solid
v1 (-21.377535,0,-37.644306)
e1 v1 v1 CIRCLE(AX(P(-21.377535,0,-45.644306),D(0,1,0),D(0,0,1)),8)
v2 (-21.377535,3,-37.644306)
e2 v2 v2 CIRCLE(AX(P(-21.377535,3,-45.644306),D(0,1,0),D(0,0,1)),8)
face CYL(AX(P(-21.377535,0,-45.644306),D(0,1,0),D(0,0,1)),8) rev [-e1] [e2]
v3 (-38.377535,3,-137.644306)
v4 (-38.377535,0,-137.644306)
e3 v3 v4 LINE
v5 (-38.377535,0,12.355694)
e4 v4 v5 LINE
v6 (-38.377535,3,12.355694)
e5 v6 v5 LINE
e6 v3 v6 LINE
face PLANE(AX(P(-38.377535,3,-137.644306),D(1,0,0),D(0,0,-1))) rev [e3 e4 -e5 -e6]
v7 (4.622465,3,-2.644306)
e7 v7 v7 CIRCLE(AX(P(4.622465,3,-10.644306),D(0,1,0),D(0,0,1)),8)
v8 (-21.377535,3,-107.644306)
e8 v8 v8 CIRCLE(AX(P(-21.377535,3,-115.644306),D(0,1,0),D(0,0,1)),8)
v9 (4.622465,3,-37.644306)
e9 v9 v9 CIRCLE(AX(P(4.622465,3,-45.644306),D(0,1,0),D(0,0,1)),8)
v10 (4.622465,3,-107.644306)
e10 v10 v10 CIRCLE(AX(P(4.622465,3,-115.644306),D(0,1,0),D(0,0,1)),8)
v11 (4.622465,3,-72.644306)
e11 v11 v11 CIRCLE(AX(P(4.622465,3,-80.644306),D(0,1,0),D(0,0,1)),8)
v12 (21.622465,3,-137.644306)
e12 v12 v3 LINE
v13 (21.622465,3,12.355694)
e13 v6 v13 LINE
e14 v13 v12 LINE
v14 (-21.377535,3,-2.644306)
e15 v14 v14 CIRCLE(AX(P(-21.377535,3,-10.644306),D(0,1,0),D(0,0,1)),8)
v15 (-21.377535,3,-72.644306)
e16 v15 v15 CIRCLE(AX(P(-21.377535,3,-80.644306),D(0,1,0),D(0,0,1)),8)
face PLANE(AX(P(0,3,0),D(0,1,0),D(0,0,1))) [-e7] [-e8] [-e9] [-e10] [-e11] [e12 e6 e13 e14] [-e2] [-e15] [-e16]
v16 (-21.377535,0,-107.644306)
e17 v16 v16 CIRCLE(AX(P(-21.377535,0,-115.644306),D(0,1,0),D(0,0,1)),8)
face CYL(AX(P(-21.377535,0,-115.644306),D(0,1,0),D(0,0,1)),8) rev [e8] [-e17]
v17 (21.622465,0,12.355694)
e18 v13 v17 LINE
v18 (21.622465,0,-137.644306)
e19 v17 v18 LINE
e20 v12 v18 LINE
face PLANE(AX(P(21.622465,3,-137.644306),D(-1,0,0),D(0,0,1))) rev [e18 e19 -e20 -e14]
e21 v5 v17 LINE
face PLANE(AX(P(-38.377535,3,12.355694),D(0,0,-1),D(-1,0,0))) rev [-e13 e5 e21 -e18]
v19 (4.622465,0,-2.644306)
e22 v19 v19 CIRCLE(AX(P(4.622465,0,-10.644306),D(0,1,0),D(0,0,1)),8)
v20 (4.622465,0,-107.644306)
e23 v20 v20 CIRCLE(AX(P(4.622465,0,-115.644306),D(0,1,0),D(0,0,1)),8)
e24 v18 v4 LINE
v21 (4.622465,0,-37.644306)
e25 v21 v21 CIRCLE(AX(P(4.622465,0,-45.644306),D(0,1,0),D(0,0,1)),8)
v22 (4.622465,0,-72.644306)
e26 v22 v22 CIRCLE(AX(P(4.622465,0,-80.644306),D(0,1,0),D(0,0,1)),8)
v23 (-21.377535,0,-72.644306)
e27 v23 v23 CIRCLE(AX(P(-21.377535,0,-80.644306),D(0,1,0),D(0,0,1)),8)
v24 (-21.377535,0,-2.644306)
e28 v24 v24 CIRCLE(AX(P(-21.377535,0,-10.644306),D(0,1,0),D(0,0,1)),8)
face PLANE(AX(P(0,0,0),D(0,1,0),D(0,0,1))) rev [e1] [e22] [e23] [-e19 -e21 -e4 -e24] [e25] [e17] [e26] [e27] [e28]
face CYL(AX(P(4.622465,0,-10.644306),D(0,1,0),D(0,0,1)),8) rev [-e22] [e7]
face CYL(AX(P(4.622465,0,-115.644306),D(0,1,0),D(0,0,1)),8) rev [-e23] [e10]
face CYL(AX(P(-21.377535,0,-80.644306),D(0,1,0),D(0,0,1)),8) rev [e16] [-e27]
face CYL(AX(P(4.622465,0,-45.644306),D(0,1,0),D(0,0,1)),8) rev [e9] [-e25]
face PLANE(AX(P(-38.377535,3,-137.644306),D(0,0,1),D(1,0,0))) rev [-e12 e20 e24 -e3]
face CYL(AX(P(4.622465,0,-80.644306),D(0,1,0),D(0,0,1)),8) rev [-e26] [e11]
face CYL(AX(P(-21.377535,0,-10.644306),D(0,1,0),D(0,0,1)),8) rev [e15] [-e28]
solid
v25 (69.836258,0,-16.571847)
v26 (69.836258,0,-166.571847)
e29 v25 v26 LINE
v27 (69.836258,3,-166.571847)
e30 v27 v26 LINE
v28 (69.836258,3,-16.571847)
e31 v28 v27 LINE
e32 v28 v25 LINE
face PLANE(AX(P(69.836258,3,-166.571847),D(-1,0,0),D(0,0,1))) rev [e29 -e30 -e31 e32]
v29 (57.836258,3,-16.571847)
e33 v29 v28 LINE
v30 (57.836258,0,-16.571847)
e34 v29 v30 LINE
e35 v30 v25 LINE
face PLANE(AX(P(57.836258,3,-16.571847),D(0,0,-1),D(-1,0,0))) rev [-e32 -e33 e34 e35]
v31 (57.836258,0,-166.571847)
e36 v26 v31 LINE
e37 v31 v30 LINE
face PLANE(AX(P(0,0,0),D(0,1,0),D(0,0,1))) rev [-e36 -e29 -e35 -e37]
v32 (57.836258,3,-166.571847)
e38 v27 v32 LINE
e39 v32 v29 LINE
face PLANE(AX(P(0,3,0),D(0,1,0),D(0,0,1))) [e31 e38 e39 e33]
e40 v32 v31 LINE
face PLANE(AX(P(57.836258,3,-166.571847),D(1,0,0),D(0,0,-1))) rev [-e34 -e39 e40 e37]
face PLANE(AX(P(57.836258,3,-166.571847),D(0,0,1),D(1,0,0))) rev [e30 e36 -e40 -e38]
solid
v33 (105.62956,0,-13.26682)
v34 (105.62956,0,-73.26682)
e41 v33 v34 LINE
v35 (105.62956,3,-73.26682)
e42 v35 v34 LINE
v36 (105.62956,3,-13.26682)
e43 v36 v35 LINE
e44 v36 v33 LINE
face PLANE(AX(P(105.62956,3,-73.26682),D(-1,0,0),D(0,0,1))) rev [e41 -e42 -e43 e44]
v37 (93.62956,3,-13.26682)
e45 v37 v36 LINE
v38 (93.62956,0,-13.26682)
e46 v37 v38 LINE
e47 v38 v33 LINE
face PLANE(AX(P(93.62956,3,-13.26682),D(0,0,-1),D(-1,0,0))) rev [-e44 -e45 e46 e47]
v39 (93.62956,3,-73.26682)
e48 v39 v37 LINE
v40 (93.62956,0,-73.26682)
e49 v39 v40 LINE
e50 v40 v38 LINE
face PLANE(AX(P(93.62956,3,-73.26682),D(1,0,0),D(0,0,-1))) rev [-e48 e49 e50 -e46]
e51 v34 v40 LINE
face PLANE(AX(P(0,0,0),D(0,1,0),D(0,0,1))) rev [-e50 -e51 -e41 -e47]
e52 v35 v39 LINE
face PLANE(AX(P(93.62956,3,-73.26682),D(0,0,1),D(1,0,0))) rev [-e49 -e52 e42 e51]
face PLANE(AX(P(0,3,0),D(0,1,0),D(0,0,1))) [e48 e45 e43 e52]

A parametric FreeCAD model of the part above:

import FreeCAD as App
import Part
import Sketcher
from FreeCAD import Vector
Q = App.Units.Quantity

doc = App.newDocument("Part")
body = doc.addObject("PartDesign::Body", "Body")

# Sketch on XZ plane
sketch1 = body.newObject("Sketcher::SketchObject", "Sketch")
sketch1.AttachmentSupport = (doc.getObject("XZ_Plane"), [""])
sketch1.MapMode = "FlatFace"
sketch1.addGeometry([
    Part.LineSegment(Vector(-38.377535, -137.644306, 0), Vector(-38.377535, 12.355694, 0)),
    Part.LineSegment(Vector(-38.377535, 12.355694, 0), Vector(21.622465, 12.355694, 0)),
    Part.LineSegment(Vector(21.622465, 12.355694, 0), Vector(21.622465, -137.644306, 0)),
    Part.LineSegment(Vector(21.622465, -137.644306, 0), Vector(-38.377535, -137.644306, 0)),
], False)
sketch1.addConstraint([
    Sketcher.Constraint("Coincident", 0, 2, 1, 1),
    Sketcher.Constraint("Coincident", 1, 2, 2, 1),
    Sketcher.Constraint("Coincident", 2, 2, 3, 1),
    Sketcher.Constraint("Coincident", 3, 2, 0, 1),
    Sketcher.Constraint("Vertical", 0),
    Sketcher.Constraint("Horizontal", 1),
    Sketcher.Constraint("Vertical", 2),
    Sketcher.Constraint("Horizontal", 3),
    Sketcher.Constraint("DistanceX", 1, 1, 1, 2, Q("60 mm")),
    Sketcher.Constraint("DistanceY", 0, 1, 0, 2, Q("150 mm")),
    Sketcher.Constraint("DistanceX", 0, 2, -1, 1, Q("38.377535 mm")),
    Sketcher.Constraint("DistanceY", -1, 1, 0, 2, Q("12.355694 mm")),
])
pad1 = body.newObject("PartDesign::Pad", "Pad")
pad1.Profile = sketch1
pad1.Length = 3
pad1.Reversed = True

# Sketch on XZ plane
sketch2 = body.newObject("Sketcher::SketchObject", "Sketch001")
sketch2.AttachmentSupport = (doc.getObject("XZ_Plane"), [""])
sketch2.MapMode = "FlatFace"
sketch2.AttachmentOffset = App.Placement(Vector(0, 0, -3), App.Rotation())
sketch2.addGeometry([
    Part.Circle(Vector(4.622465, -10.644306, 0), Vector(0, 0, 1), 8),  # 0
    Part.Circle(Vector(-21.377535, -10.644306, 0), Vector(0, 0, 1), 8),  # 1
    Part.Circle(Vector(4.622465, -45.644306, 0), Vector(0, 0, 1), 8),  # 2
    Part.Circle(Vector(-21.377535, -45.644306, 0), Vector(0, 0, 1), 8),  # 3
    Part.Circle(Vector(4.622465, -80.644306, 0), Vector(0, 0, 1), 8),  # 4
    Part.Circle(Vector(-21.377535, -80.644306, 0), Vector(0, 0, 1), 8),  # 5
    Part.Circle(Vector(4.622465, -115.644306, 0), Vector(0, 0, 1), 8),  # 6
    Part.Circle(Vector(-21.377535, -115.644306, 0), Vector(0, 0, 1), 8),  # 7
], False)
sketch2.addConstraint([
    Sketcher.Constraint("Equal", 0, 1),
    Sketcher.Constraint("Equal", 1, 2),
    Sketcher.Constraint("Equal", 2, 3),
    Sketcher.Constraint("Equal", 3, 4),
    Sketcher.Constraint("Equal", 4, 5),
    Sketcher.Constraint("Equal", 5, 6),
    Sketcher.Constraint("Equal", 6, 7),
    Sketcher.Constraint("Horizontal", 0, 3, 1, 3),
    Sketcher.Constraint("Horizontal", 2, 3, 3, 3),
    Sketcher.Constraint("Horizontal", 4, 3, 5, 3),
    Sketcher.Constraint("Horizontal", 6, 3, 7, 3),
    Sketcher.Constraint("Vertical", 0, 3, 2, 3),
    Sketcher.Constraint("Vertical", 1, 3, 3, 3),
    Sketcher.Constraint("Vertical", 2, 3, 4, 3),
    Sketcher.Constraint("Vertical", 3, 3, 5, 3),
    Sketcher.Constraint("Vertical", 4, 3, 6, 3),
    Sketcher.Constraint("Vertical", 5, 3, 7, 3),
    Sketcher.Constraint("Diameter", 0, Q("16 mm")),
    Sketcher.Constraint("DistanceX", 1, 3, 0, 3, Q("26 mm")),
    Sketcher.Constraint("DistanceY", 2, 3, 0, 3, Q("35 mm")),
    Sketcher.Constraint("DistanceY", 4, 3, 2, 3, Q("35 mm")),
    Sketcher.Constraint("DistanceY", 6, 3, 4, 3, Q("35 mm")),
    Sketcher.Constraint("DistanceX", -1, 1, 0, 3, Q("4.622465 mm")),
    Sketcher.Constraint("DistanceY", 0, 3, -1, 1, Q("10.644306 mm")),
])
pocket1 = body.newObject("PartDesign::Pocket", "Pocket")
pocket1.Profile = sketch2
pocket1.Length = 3
pocket1.Reversed = True
body2 = doc.addObject("PartDesign::Body", "Body001")

# Sketch on XZ plane
sketch3 = body2.newObject("Sketcher::SketchObject", "Sketch002")
sketch3.AttachmentSupport = (doc.getObject("XZ_Plane001"), [""])
sketch3.MapMode = "FlatFace"
sketch3.addGeometry([
    Part.LineSegment(Vector(57.836258, -166.571847, 0), Vector(57.836258, -16.571847, 0)),
    Part.LineSegment(Vector(57.836258, -16.571847, 0), Vector(69.836258, -16.571847, 0)),
    Part.LineSegment(Vector(69.836258, -16.571847, 0), Vector(69.836258, -166.571847, 0)),
    Part.LineSegment(Vector(69.836258, -166.571847, 0), Vector(57.836258, -166.571847, 0)),
], False)
sketch3.addConstraint([
    Sketcher.Constraint("Coincident", 0, 2, 1, 1),
    Sketcher.Constraint("Coincident", 1, 2, 2, 1),
    Sketcher.Constraint("Coincident", 2, 2, 3, 1),
    Sketcher.Constraint("Coincident", 3, 2, 0, 1),
    Sketcher.Constraint("Vertical", 0),
    Sketcher.Constraint("Horizontal", 1),
    Sketcher.Constraint("Vertical", 2),
    Sketcher.Constraint("Horizontal", 3),
    Sketcher.Constraint("DistanceX", 1, 1, 1, 2, Q("12 mm")),
    Sketcher.Constraint("DistanceY", 0, 1, 0, 2, Q("150 mm")),
    Sketcher.Constraint("DistanceX", -1, 1, 0, 2, Q("57.836258 mm")),
    Sketcher.Constraint("DistanceY", 0, 2, -1, 1, Q("16.571847 mm")),
])
pad2 = body2.newObject("PartDesign::Pad", "Pad001")
pad2.Profile = sketch3
pad2.Length = 3
pad2.Reversed = True
body3 = doc.addObject("PartDesign::Body", "Body002")

# Sketch on XZ plane
sketch4 = body3.newObject("Sketcher::SketchObject", "Sketch003")
sketch4.AttachmentSupport = (doc.getObject("XZ_Plane002"), [""])
sketch4.MapMode = "FlatFace"
sketch4.addGeometry([
    Part.LineSegment(Vector(93.62956, -73.26682, 0), Vector(93.62956, -13.26682, 0)),
    Part.LineSegment(Vector(93.62956, -13.26682, 0), Vector(105.62956, -13.26682, 0)),
    Part.LineSegment(Vector(105.62956, -13.26682, 0), Vector(105.62956, -73.26682, 0)),
    Part.LineSegment(Vector(105.62956, -73.26682, 0), Vector(93.62956, -73.26682, 0)),
], False)
sketch4.addConstraint([
    Sketcher.Constraint("Coincident", 0, 2, 1, 1),
    Sketcher.Constraint("Coincident", 1, 2, 2, 1),
    Sketcher.Constraint("Coincident", 2, 2, 3, 1),
    Sketcher.Constraint("Coincident", 3, 2, 0, 1),
    Sketcher.Constraint("Vertical", 0),
    Sketcher.Constraint("Horizontal", 1),
    Sketcher.Constraint("Vertical", 2),
    Sketcher.Constraint("Horizontal", 3),
    Sketcher.Constraint("DistanceX", 1, 1, 1, 2, Q("12 mm")),
    Sketcher.Constraint("DistanceY", 0, 1, 0, 2, Q("60 mm")),
    Sketcher.Constraint("DistanceX", -1, 1, 0, 2, Q("93.62956 mm")),
    Sketcher.Constraint("DistanceY", 0, 2, -1, 1, Q("13.26682 mm")),
])
pad3 = body3.newObject("PartDesign::Pad", "Pad002")
pad3.Profile = sketch4
pad3.Length = 3
pad3.Reversed = True

doc.recompute()
